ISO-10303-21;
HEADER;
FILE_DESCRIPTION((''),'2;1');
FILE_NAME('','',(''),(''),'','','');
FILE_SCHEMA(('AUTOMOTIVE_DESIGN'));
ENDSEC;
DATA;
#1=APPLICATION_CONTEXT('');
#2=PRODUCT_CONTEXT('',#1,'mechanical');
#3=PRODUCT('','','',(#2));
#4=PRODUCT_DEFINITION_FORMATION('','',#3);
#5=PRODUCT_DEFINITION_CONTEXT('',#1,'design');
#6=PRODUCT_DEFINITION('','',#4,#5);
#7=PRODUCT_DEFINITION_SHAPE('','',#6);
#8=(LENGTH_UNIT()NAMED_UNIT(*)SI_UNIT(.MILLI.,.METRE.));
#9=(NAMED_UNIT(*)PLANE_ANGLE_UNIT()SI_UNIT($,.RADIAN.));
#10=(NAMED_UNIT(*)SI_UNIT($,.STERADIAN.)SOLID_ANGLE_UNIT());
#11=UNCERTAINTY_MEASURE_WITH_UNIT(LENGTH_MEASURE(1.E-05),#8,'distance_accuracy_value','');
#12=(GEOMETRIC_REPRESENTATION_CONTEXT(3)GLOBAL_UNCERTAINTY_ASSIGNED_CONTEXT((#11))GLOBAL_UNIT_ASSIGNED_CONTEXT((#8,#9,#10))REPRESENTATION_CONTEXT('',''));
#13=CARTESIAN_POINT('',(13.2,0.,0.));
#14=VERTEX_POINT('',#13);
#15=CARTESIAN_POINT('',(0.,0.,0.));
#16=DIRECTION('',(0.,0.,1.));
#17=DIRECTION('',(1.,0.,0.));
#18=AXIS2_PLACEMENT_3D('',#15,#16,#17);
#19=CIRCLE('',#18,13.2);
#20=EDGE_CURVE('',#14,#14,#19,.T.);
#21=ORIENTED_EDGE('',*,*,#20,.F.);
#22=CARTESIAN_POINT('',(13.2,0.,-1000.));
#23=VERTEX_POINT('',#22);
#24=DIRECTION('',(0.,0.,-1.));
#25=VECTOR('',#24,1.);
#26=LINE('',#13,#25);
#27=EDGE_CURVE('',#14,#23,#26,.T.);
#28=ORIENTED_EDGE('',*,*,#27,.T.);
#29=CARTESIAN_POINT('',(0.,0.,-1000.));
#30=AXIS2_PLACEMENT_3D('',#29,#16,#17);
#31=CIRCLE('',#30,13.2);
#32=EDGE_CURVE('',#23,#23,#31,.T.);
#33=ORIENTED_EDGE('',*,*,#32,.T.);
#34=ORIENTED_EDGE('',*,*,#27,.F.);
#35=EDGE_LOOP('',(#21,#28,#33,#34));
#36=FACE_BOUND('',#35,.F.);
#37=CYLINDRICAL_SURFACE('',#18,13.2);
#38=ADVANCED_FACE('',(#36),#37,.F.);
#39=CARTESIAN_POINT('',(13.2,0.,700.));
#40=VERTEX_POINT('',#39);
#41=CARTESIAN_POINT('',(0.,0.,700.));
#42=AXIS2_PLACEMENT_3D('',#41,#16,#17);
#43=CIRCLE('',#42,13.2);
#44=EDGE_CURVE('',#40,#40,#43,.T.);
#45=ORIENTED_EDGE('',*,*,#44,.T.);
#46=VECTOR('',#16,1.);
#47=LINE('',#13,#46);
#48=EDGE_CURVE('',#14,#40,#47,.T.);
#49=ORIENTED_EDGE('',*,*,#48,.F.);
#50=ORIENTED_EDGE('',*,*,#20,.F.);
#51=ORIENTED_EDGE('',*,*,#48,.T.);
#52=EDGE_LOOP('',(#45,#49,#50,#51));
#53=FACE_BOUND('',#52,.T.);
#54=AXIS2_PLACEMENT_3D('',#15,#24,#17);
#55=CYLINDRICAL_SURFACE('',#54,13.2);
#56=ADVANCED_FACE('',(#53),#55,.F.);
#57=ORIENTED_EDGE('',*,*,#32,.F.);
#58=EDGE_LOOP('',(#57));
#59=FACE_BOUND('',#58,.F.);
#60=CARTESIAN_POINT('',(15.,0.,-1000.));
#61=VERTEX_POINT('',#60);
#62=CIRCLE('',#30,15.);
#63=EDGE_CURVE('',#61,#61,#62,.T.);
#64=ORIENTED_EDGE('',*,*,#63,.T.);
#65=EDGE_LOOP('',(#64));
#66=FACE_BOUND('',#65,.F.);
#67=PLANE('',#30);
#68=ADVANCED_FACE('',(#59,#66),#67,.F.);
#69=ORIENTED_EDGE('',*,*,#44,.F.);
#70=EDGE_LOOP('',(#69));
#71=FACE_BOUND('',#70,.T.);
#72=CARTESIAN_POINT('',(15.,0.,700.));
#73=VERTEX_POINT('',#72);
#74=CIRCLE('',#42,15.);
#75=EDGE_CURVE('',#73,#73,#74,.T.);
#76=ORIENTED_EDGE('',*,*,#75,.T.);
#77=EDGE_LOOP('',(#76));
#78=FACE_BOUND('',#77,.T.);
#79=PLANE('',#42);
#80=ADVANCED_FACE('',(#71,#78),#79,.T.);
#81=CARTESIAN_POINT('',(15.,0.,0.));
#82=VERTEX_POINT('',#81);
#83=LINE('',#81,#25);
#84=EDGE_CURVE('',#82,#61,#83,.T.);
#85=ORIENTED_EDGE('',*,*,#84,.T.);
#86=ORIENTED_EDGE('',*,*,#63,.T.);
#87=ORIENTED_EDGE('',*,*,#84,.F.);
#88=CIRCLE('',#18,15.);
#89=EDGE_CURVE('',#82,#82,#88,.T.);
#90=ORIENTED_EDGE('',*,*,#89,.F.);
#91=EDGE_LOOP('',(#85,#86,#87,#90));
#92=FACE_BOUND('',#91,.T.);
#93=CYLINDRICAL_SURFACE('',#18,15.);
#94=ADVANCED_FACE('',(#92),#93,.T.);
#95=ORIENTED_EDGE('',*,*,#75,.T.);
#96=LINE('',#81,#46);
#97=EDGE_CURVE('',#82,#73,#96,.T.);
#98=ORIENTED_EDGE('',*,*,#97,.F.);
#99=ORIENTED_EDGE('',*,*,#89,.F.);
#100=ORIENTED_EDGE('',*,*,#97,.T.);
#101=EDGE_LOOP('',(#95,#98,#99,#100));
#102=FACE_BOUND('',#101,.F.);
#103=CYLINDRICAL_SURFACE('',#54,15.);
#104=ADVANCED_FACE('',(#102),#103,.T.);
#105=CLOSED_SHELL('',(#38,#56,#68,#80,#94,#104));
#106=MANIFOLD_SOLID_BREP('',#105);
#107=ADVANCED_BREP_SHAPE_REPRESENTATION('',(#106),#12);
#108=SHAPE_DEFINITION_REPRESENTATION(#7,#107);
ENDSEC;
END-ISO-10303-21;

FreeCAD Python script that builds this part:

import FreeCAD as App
import Part
import Sketcher
Q = App.Units.Quantity

doc = App.newDocument("Part")
params = doc.addObject("Spreadsheet::Sheet", "Params")
for row, (alias, value) in enumerate([
    ("sketch1_diameter", "30 mm"),
    ("sketch1_diameter2", "26.4 mm"),
    ("pad1_length", "700 mm"),
    ("pad1_length2", "1000 mm"),
], start=1):
    params.set(f"A{row}", alias)
    params.set(f"B{row}", "=" + value)
    params.setAlias(f"B{row}", alias)

body = doc.addObject("PartDesign::Body", "Body")

# Sketch on XY plane
sketch1 = body.newObject("Sketcher::SketchObject", "Sketch")
sketch1.AttachmentSupport = (doc.getObject("XY_Plane"), [""])
sketch1.MapMode = "FlatFace"
sketch1.addGeometry(Part.Circle(App.Vector(0, 0, 0), App.Vector(0, 0, 1), 15), False)
sketch1.addGeometry(Part.Circle(App.Vector(0, 0, 0), App.Vector(0, 0, 1), 13.2), False)
sketch1.addConstraint(Sketcher.Constraint("Coincident", 0, 3, -1, 1))
sketch1.addConstraint(Sketcher.Constraint("Coincident", 1, 3, -1, 1))
sketch1.addConstraint(Sketcher.Constraint("Diameter", 0, Q("30 mm")))
sketch1.addConstraint(Sketcher.Constraint("Diameter", 1, Q("26.4 mm")))
sketch1.setExpression("Constraints[2]", "Params.sketch1_diameter")
sketch1.setExpression("Constraints[3]", "Params.sketch1_diameter2")
pad1 = body.newObject("PartDesign::Pad", "Pad")
pad1.Profile = sketch1
pad1.Type = "TwoLengths"
pad1.setExpression("Length", "Params.pad1_length")
pad1.setExpression("Length2", "Params.pad1_length2")

doc.recompute()
